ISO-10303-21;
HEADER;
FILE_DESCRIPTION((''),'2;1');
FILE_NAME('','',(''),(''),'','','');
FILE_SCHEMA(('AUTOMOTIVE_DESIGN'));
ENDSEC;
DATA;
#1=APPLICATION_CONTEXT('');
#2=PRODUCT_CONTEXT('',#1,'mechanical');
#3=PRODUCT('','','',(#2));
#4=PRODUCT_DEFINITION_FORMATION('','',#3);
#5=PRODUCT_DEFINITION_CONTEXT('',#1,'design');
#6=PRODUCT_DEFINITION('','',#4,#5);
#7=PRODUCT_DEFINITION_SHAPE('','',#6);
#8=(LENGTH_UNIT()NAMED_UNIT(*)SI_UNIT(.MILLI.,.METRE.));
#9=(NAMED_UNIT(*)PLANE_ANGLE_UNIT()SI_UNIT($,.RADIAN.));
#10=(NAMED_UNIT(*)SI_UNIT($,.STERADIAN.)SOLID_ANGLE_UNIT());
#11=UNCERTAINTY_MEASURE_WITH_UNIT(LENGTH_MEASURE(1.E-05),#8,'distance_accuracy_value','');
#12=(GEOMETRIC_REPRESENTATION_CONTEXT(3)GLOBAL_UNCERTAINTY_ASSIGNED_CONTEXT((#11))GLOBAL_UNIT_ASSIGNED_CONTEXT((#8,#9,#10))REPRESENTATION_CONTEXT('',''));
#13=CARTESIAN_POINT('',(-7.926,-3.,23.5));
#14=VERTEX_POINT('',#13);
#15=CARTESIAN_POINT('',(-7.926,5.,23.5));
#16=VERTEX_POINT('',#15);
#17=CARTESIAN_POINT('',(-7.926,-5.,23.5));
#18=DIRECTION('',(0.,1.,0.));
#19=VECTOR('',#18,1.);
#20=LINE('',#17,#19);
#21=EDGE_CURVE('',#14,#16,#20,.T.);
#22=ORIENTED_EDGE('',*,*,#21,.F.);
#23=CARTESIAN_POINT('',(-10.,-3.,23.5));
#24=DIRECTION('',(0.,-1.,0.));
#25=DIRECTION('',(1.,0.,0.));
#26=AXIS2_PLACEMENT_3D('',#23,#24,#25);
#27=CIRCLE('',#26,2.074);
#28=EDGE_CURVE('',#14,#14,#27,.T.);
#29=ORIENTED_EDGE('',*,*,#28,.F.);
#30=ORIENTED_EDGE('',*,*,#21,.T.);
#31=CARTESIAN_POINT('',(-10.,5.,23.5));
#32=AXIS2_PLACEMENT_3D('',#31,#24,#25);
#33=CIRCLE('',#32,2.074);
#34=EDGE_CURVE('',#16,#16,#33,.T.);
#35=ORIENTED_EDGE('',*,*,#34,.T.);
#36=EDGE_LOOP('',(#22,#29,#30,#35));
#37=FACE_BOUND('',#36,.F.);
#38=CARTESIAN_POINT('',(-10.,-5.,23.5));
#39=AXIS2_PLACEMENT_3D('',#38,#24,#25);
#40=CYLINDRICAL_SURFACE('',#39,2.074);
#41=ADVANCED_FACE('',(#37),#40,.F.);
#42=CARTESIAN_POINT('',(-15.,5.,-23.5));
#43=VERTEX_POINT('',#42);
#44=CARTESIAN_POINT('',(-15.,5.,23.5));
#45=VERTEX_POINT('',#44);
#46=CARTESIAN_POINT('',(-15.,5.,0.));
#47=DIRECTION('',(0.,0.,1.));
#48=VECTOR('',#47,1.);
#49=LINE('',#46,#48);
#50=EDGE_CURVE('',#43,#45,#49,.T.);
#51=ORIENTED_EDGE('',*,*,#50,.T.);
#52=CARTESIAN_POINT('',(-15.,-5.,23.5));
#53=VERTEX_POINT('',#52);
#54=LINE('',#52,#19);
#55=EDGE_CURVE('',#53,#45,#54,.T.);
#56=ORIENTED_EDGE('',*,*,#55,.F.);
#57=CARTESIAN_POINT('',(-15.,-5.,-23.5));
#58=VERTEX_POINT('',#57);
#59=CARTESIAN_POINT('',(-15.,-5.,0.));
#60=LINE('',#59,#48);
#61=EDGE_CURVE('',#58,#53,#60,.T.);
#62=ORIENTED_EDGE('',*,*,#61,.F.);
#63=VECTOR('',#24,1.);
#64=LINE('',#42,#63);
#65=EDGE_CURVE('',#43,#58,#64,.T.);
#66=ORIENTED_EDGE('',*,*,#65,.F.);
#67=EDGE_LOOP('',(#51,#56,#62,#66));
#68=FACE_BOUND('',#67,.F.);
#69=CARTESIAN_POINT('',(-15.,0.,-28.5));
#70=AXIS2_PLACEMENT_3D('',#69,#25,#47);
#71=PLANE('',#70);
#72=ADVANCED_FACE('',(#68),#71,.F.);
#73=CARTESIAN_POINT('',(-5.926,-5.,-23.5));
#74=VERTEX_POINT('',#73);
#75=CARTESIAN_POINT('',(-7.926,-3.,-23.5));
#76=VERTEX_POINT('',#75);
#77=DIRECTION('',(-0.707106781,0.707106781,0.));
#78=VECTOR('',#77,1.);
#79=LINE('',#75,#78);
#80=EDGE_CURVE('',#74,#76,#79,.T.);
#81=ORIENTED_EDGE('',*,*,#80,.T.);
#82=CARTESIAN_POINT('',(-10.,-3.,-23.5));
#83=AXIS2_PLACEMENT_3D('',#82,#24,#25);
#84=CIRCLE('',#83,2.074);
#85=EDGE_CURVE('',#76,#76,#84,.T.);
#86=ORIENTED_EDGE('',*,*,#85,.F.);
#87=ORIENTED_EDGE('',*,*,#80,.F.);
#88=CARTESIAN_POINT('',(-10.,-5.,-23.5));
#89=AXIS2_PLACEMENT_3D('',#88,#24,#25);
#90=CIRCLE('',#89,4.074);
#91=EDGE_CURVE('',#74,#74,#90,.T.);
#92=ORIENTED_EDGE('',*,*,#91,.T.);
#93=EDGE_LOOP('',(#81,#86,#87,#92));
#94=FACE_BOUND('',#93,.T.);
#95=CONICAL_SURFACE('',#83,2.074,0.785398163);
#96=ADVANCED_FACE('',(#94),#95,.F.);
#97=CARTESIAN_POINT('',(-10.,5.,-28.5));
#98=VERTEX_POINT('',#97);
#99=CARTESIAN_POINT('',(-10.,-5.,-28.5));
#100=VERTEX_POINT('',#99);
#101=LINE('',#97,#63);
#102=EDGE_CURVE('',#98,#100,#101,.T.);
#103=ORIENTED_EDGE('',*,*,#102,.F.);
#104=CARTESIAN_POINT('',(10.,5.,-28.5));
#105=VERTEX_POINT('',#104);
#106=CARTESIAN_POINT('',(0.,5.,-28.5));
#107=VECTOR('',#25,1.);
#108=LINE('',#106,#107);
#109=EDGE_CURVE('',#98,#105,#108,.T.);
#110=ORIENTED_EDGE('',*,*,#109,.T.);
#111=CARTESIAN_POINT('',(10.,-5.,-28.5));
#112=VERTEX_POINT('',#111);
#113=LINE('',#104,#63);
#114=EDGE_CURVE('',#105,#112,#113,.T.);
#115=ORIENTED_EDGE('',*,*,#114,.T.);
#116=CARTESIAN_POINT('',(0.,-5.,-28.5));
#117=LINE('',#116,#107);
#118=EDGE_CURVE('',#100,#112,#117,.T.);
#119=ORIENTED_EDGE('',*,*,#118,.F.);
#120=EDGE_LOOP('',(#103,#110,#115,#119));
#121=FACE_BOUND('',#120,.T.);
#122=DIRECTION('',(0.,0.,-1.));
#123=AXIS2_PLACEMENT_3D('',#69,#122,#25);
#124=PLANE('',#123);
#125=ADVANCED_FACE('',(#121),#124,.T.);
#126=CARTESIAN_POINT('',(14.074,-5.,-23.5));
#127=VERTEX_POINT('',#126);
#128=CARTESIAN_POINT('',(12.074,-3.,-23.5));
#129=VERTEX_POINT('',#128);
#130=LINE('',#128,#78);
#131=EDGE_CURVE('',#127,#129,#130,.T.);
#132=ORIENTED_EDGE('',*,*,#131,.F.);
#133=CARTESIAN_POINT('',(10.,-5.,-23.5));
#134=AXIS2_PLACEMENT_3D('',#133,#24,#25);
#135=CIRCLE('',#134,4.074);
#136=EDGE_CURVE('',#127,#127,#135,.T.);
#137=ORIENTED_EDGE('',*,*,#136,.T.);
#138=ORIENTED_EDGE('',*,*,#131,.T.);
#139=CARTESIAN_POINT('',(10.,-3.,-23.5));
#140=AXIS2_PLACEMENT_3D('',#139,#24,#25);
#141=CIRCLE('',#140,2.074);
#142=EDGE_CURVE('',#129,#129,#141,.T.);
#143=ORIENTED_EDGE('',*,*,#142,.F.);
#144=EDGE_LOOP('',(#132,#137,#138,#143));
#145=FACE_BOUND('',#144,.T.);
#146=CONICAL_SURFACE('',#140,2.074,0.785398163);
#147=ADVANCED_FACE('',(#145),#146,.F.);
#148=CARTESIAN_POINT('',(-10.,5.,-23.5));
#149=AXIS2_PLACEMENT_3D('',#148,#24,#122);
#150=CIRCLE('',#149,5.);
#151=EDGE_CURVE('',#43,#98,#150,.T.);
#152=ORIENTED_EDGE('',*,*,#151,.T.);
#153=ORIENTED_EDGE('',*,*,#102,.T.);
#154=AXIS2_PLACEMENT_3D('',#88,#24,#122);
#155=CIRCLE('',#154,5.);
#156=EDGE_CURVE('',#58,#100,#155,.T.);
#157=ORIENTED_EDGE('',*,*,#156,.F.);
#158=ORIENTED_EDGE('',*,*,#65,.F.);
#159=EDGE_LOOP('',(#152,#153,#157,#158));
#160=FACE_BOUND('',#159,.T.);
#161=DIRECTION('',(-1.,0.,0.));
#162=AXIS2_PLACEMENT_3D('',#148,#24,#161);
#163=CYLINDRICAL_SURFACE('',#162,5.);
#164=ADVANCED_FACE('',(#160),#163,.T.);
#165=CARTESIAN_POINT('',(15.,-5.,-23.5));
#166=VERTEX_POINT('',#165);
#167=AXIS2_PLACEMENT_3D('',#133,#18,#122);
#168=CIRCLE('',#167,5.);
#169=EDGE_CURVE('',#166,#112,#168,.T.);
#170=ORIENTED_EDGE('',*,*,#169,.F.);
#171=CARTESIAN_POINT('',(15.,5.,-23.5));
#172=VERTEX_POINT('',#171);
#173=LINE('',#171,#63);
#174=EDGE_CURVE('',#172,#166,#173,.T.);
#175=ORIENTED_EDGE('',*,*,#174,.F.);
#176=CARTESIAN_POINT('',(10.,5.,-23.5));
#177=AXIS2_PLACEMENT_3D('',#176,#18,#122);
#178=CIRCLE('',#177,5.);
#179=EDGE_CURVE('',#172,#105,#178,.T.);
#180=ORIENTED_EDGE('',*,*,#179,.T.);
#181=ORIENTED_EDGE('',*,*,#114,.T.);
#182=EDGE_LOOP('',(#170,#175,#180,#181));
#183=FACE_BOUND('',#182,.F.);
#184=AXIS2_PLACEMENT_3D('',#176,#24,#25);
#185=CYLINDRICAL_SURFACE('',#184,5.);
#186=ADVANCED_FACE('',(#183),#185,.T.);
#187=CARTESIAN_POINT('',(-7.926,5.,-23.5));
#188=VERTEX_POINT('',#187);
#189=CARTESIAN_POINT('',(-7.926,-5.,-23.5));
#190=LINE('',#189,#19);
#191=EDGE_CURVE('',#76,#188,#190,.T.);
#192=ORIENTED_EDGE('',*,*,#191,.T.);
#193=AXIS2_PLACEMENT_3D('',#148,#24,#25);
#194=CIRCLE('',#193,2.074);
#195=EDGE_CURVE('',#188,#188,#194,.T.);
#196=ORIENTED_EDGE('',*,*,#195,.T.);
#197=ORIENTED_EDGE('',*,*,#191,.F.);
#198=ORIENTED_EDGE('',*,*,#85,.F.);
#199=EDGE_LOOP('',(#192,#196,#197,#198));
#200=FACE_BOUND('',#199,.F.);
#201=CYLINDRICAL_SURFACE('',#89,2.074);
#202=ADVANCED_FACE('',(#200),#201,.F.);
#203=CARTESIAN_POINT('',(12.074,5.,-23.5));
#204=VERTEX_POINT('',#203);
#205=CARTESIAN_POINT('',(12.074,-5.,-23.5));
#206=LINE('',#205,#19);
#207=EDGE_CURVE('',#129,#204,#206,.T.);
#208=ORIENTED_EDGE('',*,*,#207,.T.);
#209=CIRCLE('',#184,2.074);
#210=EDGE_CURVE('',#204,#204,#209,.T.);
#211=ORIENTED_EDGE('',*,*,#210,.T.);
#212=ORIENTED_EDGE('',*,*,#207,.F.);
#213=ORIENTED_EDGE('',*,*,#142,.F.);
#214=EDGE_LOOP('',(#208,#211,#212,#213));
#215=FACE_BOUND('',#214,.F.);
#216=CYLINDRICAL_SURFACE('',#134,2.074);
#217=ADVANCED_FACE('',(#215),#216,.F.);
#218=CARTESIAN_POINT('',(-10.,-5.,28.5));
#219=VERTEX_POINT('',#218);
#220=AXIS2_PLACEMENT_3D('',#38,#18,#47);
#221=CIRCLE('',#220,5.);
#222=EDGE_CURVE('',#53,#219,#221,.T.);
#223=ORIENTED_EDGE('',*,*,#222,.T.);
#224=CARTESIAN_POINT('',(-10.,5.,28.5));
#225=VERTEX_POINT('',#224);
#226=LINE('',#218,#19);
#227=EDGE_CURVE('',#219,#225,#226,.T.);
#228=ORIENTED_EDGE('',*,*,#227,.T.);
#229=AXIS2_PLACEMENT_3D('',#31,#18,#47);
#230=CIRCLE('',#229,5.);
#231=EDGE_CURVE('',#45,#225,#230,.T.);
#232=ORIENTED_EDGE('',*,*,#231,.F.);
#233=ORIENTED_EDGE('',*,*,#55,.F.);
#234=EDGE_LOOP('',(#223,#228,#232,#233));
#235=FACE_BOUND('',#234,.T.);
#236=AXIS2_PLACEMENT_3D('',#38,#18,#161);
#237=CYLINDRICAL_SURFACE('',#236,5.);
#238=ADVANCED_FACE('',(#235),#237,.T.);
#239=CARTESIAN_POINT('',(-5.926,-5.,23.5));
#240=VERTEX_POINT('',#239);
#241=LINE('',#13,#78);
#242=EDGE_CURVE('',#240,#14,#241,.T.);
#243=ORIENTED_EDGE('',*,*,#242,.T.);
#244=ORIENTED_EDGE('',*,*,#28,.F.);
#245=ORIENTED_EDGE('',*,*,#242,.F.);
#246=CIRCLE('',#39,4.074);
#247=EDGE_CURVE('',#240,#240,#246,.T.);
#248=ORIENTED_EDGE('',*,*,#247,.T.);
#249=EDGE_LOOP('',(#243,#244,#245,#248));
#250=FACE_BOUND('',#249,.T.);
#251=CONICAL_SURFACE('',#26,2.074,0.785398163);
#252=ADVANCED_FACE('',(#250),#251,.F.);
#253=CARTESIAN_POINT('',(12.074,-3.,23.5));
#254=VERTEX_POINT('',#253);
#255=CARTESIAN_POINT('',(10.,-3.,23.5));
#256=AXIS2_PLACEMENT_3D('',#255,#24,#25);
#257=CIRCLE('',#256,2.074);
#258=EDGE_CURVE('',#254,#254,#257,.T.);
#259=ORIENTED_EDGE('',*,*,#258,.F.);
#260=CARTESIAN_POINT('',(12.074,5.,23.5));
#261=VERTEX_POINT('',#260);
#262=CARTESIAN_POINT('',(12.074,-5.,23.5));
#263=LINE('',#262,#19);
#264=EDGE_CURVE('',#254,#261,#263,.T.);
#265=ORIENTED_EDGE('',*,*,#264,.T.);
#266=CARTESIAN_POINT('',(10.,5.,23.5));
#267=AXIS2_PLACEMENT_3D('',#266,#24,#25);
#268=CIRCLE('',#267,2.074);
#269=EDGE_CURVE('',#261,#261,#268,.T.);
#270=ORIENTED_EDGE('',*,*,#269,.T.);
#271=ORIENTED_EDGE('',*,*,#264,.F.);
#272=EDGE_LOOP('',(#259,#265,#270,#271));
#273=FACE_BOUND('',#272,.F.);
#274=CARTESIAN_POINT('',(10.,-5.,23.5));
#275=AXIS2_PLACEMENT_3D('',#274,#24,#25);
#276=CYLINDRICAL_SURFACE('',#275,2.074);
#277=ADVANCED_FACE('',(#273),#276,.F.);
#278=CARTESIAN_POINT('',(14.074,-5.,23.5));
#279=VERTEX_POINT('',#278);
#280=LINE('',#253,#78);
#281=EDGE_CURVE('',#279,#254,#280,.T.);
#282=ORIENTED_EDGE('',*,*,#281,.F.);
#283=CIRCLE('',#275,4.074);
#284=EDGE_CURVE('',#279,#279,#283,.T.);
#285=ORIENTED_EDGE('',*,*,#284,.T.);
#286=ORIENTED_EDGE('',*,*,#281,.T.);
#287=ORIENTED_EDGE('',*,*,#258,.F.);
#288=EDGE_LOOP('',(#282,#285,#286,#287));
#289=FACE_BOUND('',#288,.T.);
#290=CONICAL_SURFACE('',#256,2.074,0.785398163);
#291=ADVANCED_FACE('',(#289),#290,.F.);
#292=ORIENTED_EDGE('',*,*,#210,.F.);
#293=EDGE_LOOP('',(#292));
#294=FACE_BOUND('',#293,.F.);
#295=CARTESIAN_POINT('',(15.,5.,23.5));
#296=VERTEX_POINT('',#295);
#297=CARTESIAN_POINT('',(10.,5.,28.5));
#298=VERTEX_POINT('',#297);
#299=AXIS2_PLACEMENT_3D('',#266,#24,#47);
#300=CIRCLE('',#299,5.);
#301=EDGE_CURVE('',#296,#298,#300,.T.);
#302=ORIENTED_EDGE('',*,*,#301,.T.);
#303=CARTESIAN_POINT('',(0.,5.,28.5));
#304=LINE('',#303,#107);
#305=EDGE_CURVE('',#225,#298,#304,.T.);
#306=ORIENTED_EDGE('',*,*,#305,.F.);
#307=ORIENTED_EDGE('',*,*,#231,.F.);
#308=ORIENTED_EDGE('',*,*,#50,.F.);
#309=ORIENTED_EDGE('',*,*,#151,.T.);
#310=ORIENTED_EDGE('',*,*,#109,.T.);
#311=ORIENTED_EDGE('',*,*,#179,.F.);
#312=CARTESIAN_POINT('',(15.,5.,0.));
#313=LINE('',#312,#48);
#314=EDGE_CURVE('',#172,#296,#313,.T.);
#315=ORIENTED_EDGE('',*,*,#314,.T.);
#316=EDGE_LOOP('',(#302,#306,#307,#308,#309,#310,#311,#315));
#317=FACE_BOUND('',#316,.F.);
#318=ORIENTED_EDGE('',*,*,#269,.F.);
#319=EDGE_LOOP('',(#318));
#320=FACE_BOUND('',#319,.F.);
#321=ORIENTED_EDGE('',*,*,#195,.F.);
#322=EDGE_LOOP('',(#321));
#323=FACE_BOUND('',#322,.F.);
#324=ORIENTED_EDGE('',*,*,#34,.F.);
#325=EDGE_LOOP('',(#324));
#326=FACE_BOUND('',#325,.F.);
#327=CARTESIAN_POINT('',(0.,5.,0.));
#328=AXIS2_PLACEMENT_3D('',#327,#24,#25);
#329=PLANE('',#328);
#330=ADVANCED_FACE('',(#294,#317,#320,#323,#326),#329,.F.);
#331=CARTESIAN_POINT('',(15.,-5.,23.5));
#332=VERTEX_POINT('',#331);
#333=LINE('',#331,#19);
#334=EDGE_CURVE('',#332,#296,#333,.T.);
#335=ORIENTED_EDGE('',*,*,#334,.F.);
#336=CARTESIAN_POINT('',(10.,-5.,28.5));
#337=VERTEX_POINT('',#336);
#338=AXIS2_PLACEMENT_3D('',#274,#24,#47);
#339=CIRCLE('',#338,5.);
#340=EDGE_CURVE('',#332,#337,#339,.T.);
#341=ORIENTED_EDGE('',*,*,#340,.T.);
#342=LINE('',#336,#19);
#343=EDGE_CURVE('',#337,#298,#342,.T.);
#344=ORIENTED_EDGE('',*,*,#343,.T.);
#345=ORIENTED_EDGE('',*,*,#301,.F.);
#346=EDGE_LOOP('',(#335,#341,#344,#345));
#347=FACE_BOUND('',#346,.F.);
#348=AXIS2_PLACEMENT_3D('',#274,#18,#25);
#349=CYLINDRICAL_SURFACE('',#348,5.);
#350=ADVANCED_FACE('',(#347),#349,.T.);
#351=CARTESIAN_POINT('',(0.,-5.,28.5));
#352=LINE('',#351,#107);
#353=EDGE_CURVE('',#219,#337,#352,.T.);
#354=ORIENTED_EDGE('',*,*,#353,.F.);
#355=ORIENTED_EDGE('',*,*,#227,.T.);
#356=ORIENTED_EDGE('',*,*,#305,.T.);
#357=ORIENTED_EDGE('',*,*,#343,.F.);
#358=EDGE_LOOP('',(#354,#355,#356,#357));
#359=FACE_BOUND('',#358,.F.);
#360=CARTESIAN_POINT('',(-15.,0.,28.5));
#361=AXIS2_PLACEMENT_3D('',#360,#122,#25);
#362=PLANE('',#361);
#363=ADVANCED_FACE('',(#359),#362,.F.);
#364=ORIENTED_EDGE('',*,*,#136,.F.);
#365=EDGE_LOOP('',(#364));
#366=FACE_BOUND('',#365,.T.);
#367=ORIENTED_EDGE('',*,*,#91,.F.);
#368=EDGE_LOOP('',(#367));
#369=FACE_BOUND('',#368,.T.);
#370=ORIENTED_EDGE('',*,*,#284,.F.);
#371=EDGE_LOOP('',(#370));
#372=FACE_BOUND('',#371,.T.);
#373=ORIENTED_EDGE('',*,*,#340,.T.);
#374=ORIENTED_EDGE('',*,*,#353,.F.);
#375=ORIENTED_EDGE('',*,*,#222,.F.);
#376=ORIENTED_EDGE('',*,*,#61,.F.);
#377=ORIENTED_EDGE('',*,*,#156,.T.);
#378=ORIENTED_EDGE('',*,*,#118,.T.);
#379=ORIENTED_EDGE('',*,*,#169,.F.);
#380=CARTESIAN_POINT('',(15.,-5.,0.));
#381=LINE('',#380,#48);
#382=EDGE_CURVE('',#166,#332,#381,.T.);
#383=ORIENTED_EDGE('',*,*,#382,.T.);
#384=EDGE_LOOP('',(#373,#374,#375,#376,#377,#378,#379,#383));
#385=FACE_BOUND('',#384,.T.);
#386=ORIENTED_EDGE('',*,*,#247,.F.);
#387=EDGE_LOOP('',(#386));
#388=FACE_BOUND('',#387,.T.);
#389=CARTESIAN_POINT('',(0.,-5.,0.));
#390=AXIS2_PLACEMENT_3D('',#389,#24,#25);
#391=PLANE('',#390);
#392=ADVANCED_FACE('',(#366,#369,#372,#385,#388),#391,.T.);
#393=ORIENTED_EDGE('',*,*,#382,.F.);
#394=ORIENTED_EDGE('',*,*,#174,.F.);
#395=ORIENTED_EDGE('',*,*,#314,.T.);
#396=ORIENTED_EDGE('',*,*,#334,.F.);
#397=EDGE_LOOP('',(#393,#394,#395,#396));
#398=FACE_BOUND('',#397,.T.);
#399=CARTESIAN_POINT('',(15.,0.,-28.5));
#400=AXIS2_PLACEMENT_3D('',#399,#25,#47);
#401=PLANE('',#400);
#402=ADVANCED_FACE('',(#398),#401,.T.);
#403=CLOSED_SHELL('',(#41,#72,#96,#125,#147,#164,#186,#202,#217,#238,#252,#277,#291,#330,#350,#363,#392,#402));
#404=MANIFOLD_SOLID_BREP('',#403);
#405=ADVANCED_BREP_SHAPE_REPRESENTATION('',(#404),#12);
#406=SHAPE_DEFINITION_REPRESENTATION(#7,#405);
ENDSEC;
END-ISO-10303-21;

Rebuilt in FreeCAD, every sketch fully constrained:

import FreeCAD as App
import Part
import Sketcher

V = App.Vector


def edges_at(feature, points):
    """Names of the edges that pass closest to the given points."""
    edges = feature.Shape.Edges
    near = lambda p: min(range(len(edges)), key=lambda i: edges[i].distToShape(Part.Vertex(*p))[0])
    return sorted({f"Edge{near(p) + 1}" for p in points})


def add_polygon(sketch, points):
    """Adds a closed chain of lines whose ends are joined by coincident constraints."""
    first, n = sketch.GeometryCount, len(points)
    for a, b in zip(points, points[1:] + points[:1]):
        sketch.addGeometry(Part.LineSegment(App.Vector(*a, 0), App.Vector(*b, 0)), False)
    for i in range(n):
        sketch.addConstraint(Sketcher.Constraint("Coincident", first + i, 2, first + (i + 1) % n, 1))

doc = App.newDocument("Part")
body = doc.addObject("PartDesign::Body", "Body")

sketch1 = doc.addObject("Sketcher::SketchObject", "Sketch")
body.addObject(sketch1)
sketch1.AttachmentSupport = (doc.XZ_Plane, [""])
sketch1.MapMode = "FlatFace"
add_polygon(sketch1, [(-15, 28), (-15, -28), (15, -28), (15, 28)])
sketch1.addConstraint(Sketcher.Constraint("Vertical", 0))
sketch1.addConstraint(Sketcher.Constraint("Horizontal", 1))
sketch1.addConstraint(Sketcher.Constraint("Vertical", 2))
sketch1.addConstraint(Sketcher.Constraint("Horizontal", 3))
sketch1.addConstraint(Sketcher.Constraint("Symmetric", 0, 2, 2, 2, -1, 1))
sketch1.addConstraint(Sketcher.Constraint("DistanceX", 1, 1, 1, 2, 30.0))
sketch1.addConstraint(Sketcher.Constraint("DistanceY", 0, 2, 0, 1, 57.0))
pad1 = doc.addObject("PartDesign::Pad", "Pad")
body.addObject(pad1)
pad1.Profile = sketch1
pad1.Type = "TwoLengths"
pad1.Length = 5
pad1.Length2 = 5
doc.recompute()

fillet = doc.addObject("PartDesign::Fillet", "Fillet")
body.addObject(fillet)
fillet.Base = (pad1, edges_at(pad1, [
    (-15, 0, 28.5),
    (15, 0, 28.5),
    (-15, 0, -28.5),
    (15, 0, -28.5),
]))
fillet.Radius = 5

sketch2 = doc.addObject("Sketcher::SketchObject", "Sketch001")
body.addObject(sketch2)
sketch2.AttachmentSupport = (doc.XZ_Plane, [""])
sketch2.MapMode = "FlatFace"
sketch2.AttachmentOffset = App.Placement(V(0, 0, 5), App.Rotation())
sketch2.addGeometry(Part.Circle(V(-10, 23.5, 0), V(0, 0, 1), 2.1), False)
sketch2.addGeometry(Part.Circle(V(10, 23.5, 0), V(0, 0, 1), 2.1), False)
sketch2.addGeometry(Part.Circle(V(-10, -23.5, 0), V(0, 0, 1), 2.1), False)
sketch2.addGeometry(Part.Circle(V(10, -23.5, 0), V(0, 0, 1), 2.1), False)
sketch2.addConstraint(Sketcher.Constraint("Equal", 0, 1))
sketch2.addConstraint(Sketcher.Constraint("Equal", 1, 2))
sketch2.addConstraint(Sketcher.Constraint("Equal", 2, 3))
sketch2.addConstraint(Sketcher.Constraint("Symmetric", 1, 3, 2, 3, -1, 1))
sketch2.addConstraint(Sketcher.Constraint("Symmetric", 0, 3, 3, 3, -1, 1))
sketch2.addConstraint(Sketcher.Constraint("Symmetric", 0, 3, 1, 3, -2))
sketch2.addConstraint(Sketcher.Constraint("Diameter", 0, 4.148))
sketch2.addConstraint(Sketcher.Constraint("DistanceX", 0, 3, -1, 1, 10.0))
sketch2.addConstraint(Sketcher.Constraint("DistanceY", 2, 3, 0, 3, 47.0))
pocket1 = doc.addObject("PartDesign::Pocket", "Pocket")
body.addObject(pocket1)
pocket1.Profile = sketch2
pocket1.Type = "ThroughAll"
doc.recompute()

chamfer = doc.addObject("PartDesign::Chamfer", "Chamfer")
body.addObject(chamfer)
chamfer.Base = (pocket1, edges_at(pocket1, [
    (-12.074, -5, 23.5),
    (7.926, -5, 23.5),
    (-12.074, -5, -23.5),
    (7.926, -5, -23.5),
]))
chamfer.Size = 2

doc.recompute()
